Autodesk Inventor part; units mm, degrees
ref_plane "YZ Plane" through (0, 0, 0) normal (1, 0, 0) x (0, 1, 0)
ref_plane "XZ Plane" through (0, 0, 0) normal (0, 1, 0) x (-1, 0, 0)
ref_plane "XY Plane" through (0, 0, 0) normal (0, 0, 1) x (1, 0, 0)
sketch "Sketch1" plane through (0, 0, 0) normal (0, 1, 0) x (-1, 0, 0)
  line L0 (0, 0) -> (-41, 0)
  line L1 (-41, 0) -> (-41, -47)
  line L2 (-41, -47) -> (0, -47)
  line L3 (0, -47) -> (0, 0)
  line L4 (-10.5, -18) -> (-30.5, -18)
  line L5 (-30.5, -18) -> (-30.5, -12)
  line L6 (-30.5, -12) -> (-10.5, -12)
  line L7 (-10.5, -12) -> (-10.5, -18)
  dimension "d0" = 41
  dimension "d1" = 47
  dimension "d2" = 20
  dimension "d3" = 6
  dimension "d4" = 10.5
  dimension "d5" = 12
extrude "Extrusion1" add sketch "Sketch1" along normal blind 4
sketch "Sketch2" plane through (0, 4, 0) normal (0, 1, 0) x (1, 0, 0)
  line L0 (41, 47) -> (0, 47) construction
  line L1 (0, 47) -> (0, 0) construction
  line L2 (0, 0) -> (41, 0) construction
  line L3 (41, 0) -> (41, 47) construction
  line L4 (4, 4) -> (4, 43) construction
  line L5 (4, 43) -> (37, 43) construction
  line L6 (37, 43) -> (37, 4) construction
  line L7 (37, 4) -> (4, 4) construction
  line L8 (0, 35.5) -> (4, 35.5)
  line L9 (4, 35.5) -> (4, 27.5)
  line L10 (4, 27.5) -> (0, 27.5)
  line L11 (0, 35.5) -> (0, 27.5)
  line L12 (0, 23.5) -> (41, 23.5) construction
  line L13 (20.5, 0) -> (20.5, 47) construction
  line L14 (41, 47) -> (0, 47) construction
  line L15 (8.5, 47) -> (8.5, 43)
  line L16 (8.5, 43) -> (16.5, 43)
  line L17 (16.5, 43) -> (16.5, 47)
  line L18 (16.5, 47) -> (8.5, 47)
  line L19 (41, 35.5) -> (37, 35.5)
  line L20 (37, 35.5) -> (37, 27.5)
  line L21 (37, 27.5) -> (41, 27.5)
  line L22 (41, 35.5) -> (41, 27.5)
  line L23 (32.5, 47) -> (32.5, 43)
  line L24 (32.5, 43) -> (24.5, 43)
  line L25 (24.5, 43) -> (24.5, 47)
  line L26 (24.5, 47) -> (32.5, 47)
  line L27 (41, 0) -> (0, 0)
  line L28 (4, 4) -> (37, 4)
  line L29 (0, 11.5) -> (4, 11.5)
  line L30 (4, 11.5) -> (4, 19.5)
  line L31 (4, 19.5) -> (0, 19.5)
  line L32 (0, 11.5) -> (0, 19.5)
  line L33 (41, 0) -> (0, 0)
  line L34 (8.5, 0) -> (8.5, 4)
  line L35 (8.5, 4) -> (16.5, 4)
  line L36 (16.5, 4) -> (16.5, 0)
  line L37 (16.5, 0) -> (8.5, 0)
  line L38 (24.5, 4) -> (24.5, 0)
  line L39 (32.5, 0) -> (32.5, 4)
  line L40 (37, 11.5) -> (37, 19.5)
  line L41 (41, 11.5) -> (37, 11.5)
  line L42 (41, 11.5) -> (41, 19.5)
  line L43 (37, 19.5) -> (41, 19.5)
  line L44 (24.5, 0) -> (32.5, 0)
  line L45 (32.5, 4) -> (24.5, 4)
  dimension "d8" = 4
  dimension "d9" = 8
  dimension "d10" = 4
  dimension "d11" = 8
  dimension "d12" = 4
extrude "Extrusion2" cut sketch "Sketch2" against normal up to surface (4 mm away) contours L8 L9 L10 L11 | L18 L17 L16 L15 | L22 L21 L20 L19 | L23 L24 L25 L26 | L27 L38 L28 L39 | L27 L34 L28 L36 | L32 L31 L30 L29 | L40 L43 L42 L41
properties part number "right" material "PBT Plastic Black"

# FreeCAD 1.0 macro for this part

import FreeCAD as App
import Part
import Sketcher
from FreeCAD import Vector
Q = App.Units.Quantity

doc = App.newDocument("Part")
body = doc.addObject("PartDesign::Body", "Body")

sketch1 = doc.addObject("Sketcher::SketchObject", "Sketch")
body.addObject(sketch1)
sketch1.AttachmentSupport = (doc.XZ_Plane, [""])
sketch1.MapMode = "FlatFace"
sketch1.addGeometry([
    Part.LineSegment(Vector(0, -47, 0), Vector(0, 0, 0)),
    Part.LineSegment(Vector(0, 0, 0), Vector(41, 0, 0)),
    Part.LineSegment(Vector(41, 0, 0), Vector(41, -47, 0)),
    Part.LineSegment(Vector(41, -47, 0), Vector(0, -47, 0)),
    Part.LineSegment(Vector(10.5, -12, 0), Vector(10.5, -18, 0)),
    Part.LineSegment(Vector(10.5, -18, 0), Vector(30.5, -18, 0)),
    Part.LineSegment(Vector(30.5, -18, 0), Vector(30.5, -12, 0)),
    Part.LineSegment(Vector(30.5, -12, 0), Vector(10.5, -12, 0)),
], False)
sketch1.addConstraint([
    Sketcher.Constraint("Coincident", 0, 2, 1, 1),
    Sketcher.Constraint("Coincident", 1, 2, 2, 1),
    Sketcher.Constraint("Coincident", 2, 2, 3, 1),
    Sketcher.Constraint("Coincident", 3, 2, 0, 1),
    Sketcher.Constraint("Coincident", 4, 2, 5, 1),
    Sketcher.Constraint("Coincident", 5, 2, 6, 1),
    Sketcher.Constraint("Coincident", 6, 2, 7, 1),
    Sketcher.Constraint("Coincident", 7, 2, 4, 1),
    Sketcher.Constraint("Vertical", 0),
    Sketcher.Constraint("Horizontal", 1),
    Sketcher.Constraint("Vertical", 2),
    Sketcher.Constraint("Horizontal", 3),
    Sketcher.Constraint("Vertical", 4),
    Sketcher.Constraint("Horizontal", 5),
    Sketcher.Constraint("Vertical", 6),
    Sketcher.Constraint("Horizontal", 7),
    Sketcher.Constraint("Coincident", 0, 2, -1, 1),
    Sketcher.Constraint("DistanceX", 1, 1, 1, 2, Q("41 mm")),
    Sketcher.Constraint("DistanceX", 5, 1, 5, 2, Q("20 mm")),
    Sketcher.Constraint("DistanceY", 0, 1, 0, 2, Q("47 mm")),
    Sketcher.Constraint("DistanceY", 4, 2, 4, 1, Q("6 mm")),
    Sketcher.Constraint("DistanceY", 6, 2, -1, 1, Q("12 mm")),
    Sketcher.Constraint("DistanceX", -1, 1, 4, 2, Q("10.5 mm")),
])
pad1 = doc.addObject("PartDesign::Pad", "Pad")
body.addObject(pad1)
pad1.Profile = sketch1
pad1.Length = 4
pad1.Reversed = True

sketch2 = doc.addObject("Sketcher::SketchObject", "Sketch001")
body.addObject(sketch2)
sketch2.AttachmentSupport = (doc.XZ_Plane, [""])
sketch2.MapMode = "FlatFace"
sketch2.AttachmentOffset = App.Placement(Vector(0, 0, -4), App.Rotation())
sketch2.addGeometry([
    Part.LineSegment(Vector(4, -35.5, 0), Vector(0, -35.5, 0)),
    Part.LineSegment(Vector(0, -35.5, 0), Vector(0, -27.5, 0)),
    Part.LineSegment(Vector(0, -27.5, 0), Vector(4, -27.5, 0)),
    Part.LineSegment(Vector(4, -27.5, 0), Vector(4, -35.5, 0)),
    Part.LineSegment(Vector(16.5, -47, 0), Vector(8.5, -47, 0)),
    Part.LineSegment(Vector(8.5, -47, 0), Vector(8.5, -43, 0)),
    Part.LineSegment(Vector(8.5, -43, 0), Vector(16.5, -43, 0)),
    Part.LineSegment(Vector(16.5, -43, 0), Vector(16.5, -47, 0)),
    Part.LineSegment(Vector(41, -27.5, 0), Vector(41, -35.5, 0)),
    Part.LineSegment(Vector(41, -35.5, 0), Vector(37, -35.5, 0)),
    Part.LineSegment(Vector(37, -35.5, 0), Vector(37, -27.5, 0)),
    Part.LineSegment(Vector(37, -27.5, 0), Vector(41, -27.5, 0)),
    Part.LineSegment(Vector(32.5, -43, 0), Vector(32.5, -47, 0)),
    Part.LineSegment(Vector(32.5, -47, 0), Vector(24.5, -47, 0)),
    Part.LineSegment(Vector(24.5, -47, 0), Vector(24.5, -43, 0)),
    Part.LineSegment(Vector(24.5, -43, 0), Vector(32.5, -43, 0)),
    Part.LineSegment(Vector(24.5, 0, 0), Vector(32.5, 0, 0)),
    Part.LineSegment(Vector(32.5, 0, 0), Vector(32.5, -4, 0)),
    Part.LineSegment(Vector(32.5, -4, 0), Vector(24.5, -4, 0)),
    Part.LineSegment(Vector(24.5, -4, 0), Vector(24.5, 0, 0)),
    Part.LineSegment(Vector(8.5, 0, 0), Vector(16.5, 0, 0)),
    Part.LineSegment(Vector(16.5, 0, 0), Vector(16.5, -4, 0)),
    Part.LineSegment(Vector(16.5, -4, 0), Vector(8.5, -4, 0)),
    Part.LineSegment(Vector(8.5, -4, 0), Vector(8.5, 0, 0)),
    Part.LineSegment(Vector(0, -19.5, 0), Vector(0, -11.5, 0)),
    Part.LineSegment(Vector(0, -11.5, 0), Vector(4, -11.5, 0)),
    Part.LineSegment(Vector(4, -11.5, 0), Vector(4, -19.5, 0)),
    Part.LineSegment(Vector(4, -19.5, 0), Vector(0, -19.5, 0)),
    Part.LineSegment(Vector(37, -19.5, 0), Vector(37, -11.5, 0)),
    Part.LineSegment(Vector(37, -11.5, 0), Vector(41, -11.5, 0)),
    Part.LineSegment(Vector(41, -11.5, 0), Vector(41, -19.5, 0)),
    Part.LineSegment(Vector(41, -19.5, 0), Vector(37, -19.5, 0)),
], False)
sketch2.addConstraint([
    Sketcher.Constraint("Coincident", 0, 2, 1, 1),
    Sketcher.Constraint("Coincident", 1, 2, 2, 1),
    Sketcher.Constraint("Coincident", 2, 2, 3, 1),
    Sketcher.Constraint("Coincident", 3, 2, 0, 1),
    Sketcher.Constraint("Coincident", 4, 2, 5, 1),
    Sketcher.Constraint("Coincident", 5, 2, 6, 1),
    Sketcher.Constraint("Coincident", 6, 2, 7, 1),
    Sketcher.Constraint("Coincident", 7, 2, 4, 1),
    Sketcher.Constraint("Coincident", 8, 2, 9, 1),
    Sketcher.Constraint("Coincident", 9, 2, 10, 1),
    Sketcher.Constraint("Coincident", 10, 2, 11, 1),
    Sketcher.Constraint("Coincident", 11, 2, 8, 1),
    Sketcher.Constraint("Coincident", 12, 2, 13, 1),
    Sketcher.Constraint("Coincident", 13, 2, 14, 1),
    Sketcher.Constraint("Coincident", 14, 2, 15, 1),
    Sketcher.Constraint("Coincident", 15, 2, 12, 1),
    Sketcher.Constraint("Coincident", 16, 2, 17, 1),
    Sketcher.Constraint("Coincident", 17, 2, 18, 1),
    Sketcher.Constraint("Coincident", 18, 2, 19, 1),
    Sketcher.Constraint("Coincident", 19, 2, 16, 1),
    Sketcher.Constraint("Coincident", 20, 2, 21, 1),
    Sketcher.Constraint("Coincident", 21, 2, 22, 1),
    Sketcher.Constraint("Coincident", 22, 2, 23, 1),
    Sketcher.Constraint("Coincident", 23, 2, 20, 1),
    Sketcher.Constraint("Coincident", 24, 2, 25, 1),
    Sketcher.Constraint("Coincident", 25, 2, 26, 1),
    Sketcher.Constraint("Coincident", 26, 2, 27, 1),
    Sketcher.Constraint("Coincident", 27, 2, 24, 1),
    Sketcher.Constraint("Coincident", 28, 2, 29, 1),
    Sketcher.Constraint("Coincident", 29, 2, 30, 1),
    Sketcher.Constraint("Coincident", 30, 2, 31, 1),
    Sketcher.Constraint("Coincident", 31, 2, 28, 1),
    Sketcher.Constraint("Horizontal", 0),
    Sketcher.Constraint("Vertical", 1),
    Sketcher.Constraint("Horizontal", 2),
    Sketcher.Constraint("Vertical", 3),
    Sketcher.Constraint("Horizontal", 4),
    Sketcher.Constraint("Vertical", 5),
    Sketcher.Constraint("Horizontal", 6),
    Sketcher.Constraint("Vertical", 7),
    Sketcher.Constraint("Vertical", 8),
    Sketcher.Constraint("Horizontal", 9),
    Sketcher.Constraint("Vertical", 10),
    Sketcher.Constraint("Horizontal", 11),
    Sketcher.Constraint("Vertical", 12),
    Sketcher.Constraint("Horizontal", 13),
    Sketcher.Constraint("Vertical", 14),
    Sketcher.Constraint("Horizontal", 15),
    Sketcher.Constraint("Horizontal", 16),
    Sketcher.Constraint("Vertical", 17),
    Sketcher.Constraint("Horizontal", 18),
    Sketcher.Constraint("Vertical", 19),
    Sketcher.Constraint("Horizontal", 20),
    Sketcher.Constraint("Vertical", 21),
    Sketcher.Constraint("Horizontal", 22),
    Sketcher.Constraint("Vertical", 23),
    Sketcher.Constraint("Vertical", 24),
    Sketcher.Constraint("Horizontal", 25),
    Sketcher.Constraint("Vertical", 26),
    Sketcher.Constraint("Horizontal", 27),
    Sketcher.Constraint("Vertical", 28),
    Sketcher.Constraint("Horizontal", 29),
    Sketcher.Constraint("Vertical", 30),
    Sketcher.Constraint("Horizontal", 31),
    Sketcher.Constraint("PointOnObject", 0, 2, -2),
    Sketcher.Constraint("PointOnObject", 16, 2, -1),
    Sketcher.Constraint("PointOnObject", 20, 2, -1),
    Sketcher.Constraint("PointOnObject", 24, 2, -2),
    Sketcher.Constraint("Horizontal", 3, 2, 8, 2),
    Sketcher.Constraint("Horizontal", 2, 2, 10, 2),
    Sketcher.Constraint("Horizontal", 7, 2, 12, 2),
    Sketcher.Constraint("Horizontal", 6, 2, 14, 2),
    Sketcher.Constraint("Horizontal", 18, 2, 21, 2),
    Sketcher.Constraint("Horizontal", 25, 2, 28, 2),
    Sketcher.Constraint("Horizontal", 27, 2, 30, 2),
    Sketcher.Constraint("Vertical", 15, 2, 16, 2),
    Sketcher.Constraint("Vertical", 14, 2, 18, 2),
    Sketcher.Constraint("Vertical", 7, 2, 20, 2),
    Sketcher.Constraint("Vertical", 5, 2, 22, 2),
    Sketcher.Constraint("Vertical", 3, 2, 25, 2),
    Sketcher.Constraint("Vertical", 10, 2, 28, 2),
    Sketcher.Constraint("Vertical", 11, 2, 29, 2),
    Sketcher.Constraint("Equal", 2, 9),
    Sketcher.Constraint("Equal", 6, 13),
    Sketcher.Constraint("Equal", 22, 1),
    Sketcher.Constraint("Equal", 31, 5),
    Sketcher.Constraint("Equal", 14, 17),
    Sketcher.Constraint("Equal", 10, 24),
    Sketcher.Constraint("DistanceX", 0, 2, 0, 1, Q("4 mm")),
    Sketcher.Constraint("DistanceX", 4, 2, 4, 1, Q("8 mm")),
    Sketcher.Constraint("DistanceX", 7, 2, 13, 2, Q("8 mm")),
    Sketcher.Constraint("DistanceY", 2, 2, 26, 2, Q("8 mm")),
    Sketcher.Constraint("DistanceY", 4, 2, -1, 1, Q("47 mm")),
    Sketcher.Constraint("DistanceX", -1, 1, 8, 2, Q("41 mm")),
    Sketcher.Constraint("DistanceY", 0, 2, -1, 1, Q("35.5 mm")),
    Sketcher.Constraint("DistanceX", -1, 1, 4, 2, Q("8.5 mm")),
])
pocket1 = doc.addObject("PartDesign::Pocket", "Pocket")
body.addObject(pocket1)
pocket1.Profile = sketch2
pocket1.Length = 4
pocket1.Reversed = True

doc.recompute()
